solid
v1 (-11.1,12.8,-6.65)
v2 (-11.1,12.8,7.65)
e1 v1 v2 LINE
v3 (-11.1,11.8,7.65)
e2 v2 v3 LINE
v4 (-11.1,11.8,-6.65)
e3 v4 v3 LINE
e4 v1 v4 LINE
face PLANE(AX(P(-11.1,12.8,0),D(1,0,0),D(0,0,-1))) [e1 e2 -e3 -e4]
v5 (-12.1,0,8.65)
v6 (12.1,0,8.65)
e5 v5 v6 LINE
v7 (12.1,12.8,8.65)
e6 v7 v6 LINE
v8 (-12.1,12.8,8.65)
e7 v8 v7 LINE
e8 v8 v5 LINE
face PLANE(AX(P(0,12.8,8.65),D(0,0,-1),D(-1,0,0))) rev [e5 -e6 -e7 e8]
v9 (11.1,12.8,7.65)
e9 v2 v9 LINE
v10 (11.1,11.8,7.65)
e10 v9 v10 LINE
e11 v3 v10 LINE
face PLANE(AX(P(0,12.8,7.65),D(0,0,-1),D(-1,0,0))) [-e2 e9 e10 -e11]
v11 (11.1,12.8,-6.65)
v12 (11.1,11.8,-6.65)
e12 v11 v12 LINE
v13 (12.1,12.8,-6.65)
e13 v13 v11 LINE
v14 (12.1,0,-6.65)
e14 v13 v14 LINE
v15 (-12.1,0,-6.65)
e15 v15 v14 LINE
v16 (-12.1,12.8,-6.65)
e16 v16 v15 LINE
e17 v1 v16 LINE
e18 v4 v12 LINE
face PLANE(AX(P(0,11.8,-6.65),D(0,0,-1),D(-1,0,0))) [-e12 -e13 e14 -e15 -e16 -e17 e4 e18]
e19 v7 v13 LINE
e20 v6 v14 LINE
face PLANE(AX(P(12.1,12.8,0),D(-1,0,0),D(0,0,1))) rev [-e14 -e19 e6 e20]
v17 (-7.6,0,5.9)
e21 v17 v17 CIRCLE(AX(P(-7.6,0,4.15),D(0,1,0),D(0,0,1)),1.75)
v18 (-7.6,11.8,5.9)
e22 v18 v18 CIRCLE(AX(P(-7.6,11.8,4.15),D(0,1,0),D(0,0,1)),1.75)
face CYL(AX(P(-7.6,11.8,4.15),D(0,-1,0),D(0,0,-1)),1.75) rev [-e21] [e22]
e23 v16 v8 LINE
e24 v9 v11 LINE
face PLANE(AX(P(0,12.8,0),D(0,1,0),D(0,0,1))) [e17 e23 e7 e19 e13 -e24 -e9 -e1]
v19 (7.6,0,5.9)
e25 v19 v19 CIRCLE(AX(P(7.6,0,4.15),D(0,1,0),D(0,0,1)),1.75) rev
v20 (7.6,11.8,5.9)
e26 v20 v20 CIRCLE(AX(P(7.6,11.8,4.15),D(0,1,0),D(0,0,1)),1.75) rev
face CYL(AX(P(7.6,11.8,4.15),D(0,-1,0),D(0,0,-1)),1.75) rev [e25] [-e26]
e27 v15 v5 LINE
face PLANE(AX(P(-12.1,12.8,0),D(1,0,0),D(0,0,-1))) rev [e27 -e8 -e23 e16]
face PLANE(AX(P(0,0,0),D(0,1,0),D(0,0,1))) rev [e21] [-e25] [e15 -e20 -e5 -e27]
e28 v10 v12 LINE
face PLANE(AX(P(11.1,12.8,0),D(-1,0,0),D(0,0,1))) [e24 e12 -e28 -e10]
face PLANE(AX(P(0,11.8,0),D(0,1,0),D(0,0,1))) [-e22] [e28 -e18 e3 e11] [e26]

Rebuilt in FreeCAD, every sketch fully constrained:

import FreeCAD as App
import Part
import Sketcher

V = App.Vector

doc = App.newDocument("Part")
body = doc.addObject("PartDesign::Body", "Body")

sketch1 = doc.addObject("Sketcher::SketchObject", "Sketch")
body.addObject(sketch1)
sketch1.AttachmentSupport = (doc.XZ_Plane, [""])
sketch1.MapMode = "FlatFace"
sketch1.addGeometry([
    Part.LineSegment(V(-11.1, -6.65, 0), V(-11.1, 7.65, 0)),
    Part.LineSegment(V(-11.1, 7.65, 0), V(11.1, 7.65, 0)),
    Part.LineSegment(V(11.1, 7.65, 0), V(11.1, -6.65, 0)),
    Part.LineSegment(V(11.1, -6.65, 0), V(-11.1, -6.65, 0)),
    Part.Circle(V(-7.6, 4.15, 0), V(0, 0, 1), 1.75),
    Part.Circle(V(7.6, 4.15, 0), V(0, 0, 1), 1.75),
], False)
sketch1.addConstraint([
    Sketcher.Constraint("Coincident", 0, 2, 1, 1),
    Sketcher.Constraint("Coincident", 1, 2, 2, 1),
    Sketcher.Constraint("Coincident", 2, 2, 3, 1),
    Sketcher.Constraint("Coincident", 3, 2, 0, 1),
    Sketcher.Constraint("Vertical", 0),
    Sketcher.Constraint("Horizontal", 1),
    Sketcher.Constraint("Vertical", 2),
    Sketcher.Constraint("Horizontal", 3),
    Sketcher.Constraint("Equal", 4, 5),
    Sketcher.Constraint("Symmetric", 4, 3, 5, 3, -2),
    Sketcher.Constraint("Diameter", 4, 3.5),
    Sketcher.Constraint("DistanceX", 1, 1, 1, 2, 22.2),
    Sketcher.Constraint("DistanceY", 0, 1, 0, 2, 14.3),
    Sketcher.Constraint("DistanceX", 4, 3, -1, 1, 7.6),
    Sketcher.Constraint("DistanceX", 0, 2, -1, 1, 11.1),
    Sketcher.Constraint("DistanceY", 4, 3, 0, 2, 3.5),
    Sketcher.Constraint("DistanceY", -1, 1, 4, 3, 4.15),
])
pad1 = doc.addObject("PartDesign::Pad", "Pad")
body.addObject(pad1)
pad1.Profile = sketch1
pad1.Length = 11.8
pad1.Reversed = True

sketch2 = doc.addObject("Sketcher::SketchObject", "Sketch001")
body.addObject(sketch2)
sketch2.AttachmentSupport = (doc.XZ_Plane, [""])
sketch2.MapMode = "FlatFace"
sketch2.addGeometry([
    Part.LineSegment(V(12.1, 8.65, 0), V(12.1, -6.65, 0)),
    Part.LineSegment(V(12.1, -6.65, 0), V(11.1, -6.65, 0)),
    Part.LineSegment(V(11.1, -6.65, 0), V(11.1, 7.65, 0)),
    Part.LineSegment(V(11.1, 7.65, 0), V(-11.1, 7.65, 0)),
    Part.LineSegment(V(-11.1, 7.65, 0), V(-11.1, -6.65, 0)),
    Part.LineSegment(V(-11.1, -6.65, 0), V(-12.1, -6.65, 0)),
    Part.LineSegment(V(-12.1, -6.65, 0), V(-12.1, 8.65, 0)),
    Part.LineSegment(V(-12.1, 8.65, 0), V(12.1, 8.65, 0)),
], False)
sketch2.addConstraint([
    Sketcher.Constraint("Coincident", 0, 2, 1, 1),
    Sketcher.Constraint("Coincident", 1, 2, 2, 1),
    Sketcher.Constraint("Coincident", 2, 2, 3, 1),
    Sketcher.Constraint("Coincident", 3, 2, 4, 1),
    Sketcher.Constraint("Coincident", 4, 2, 5, 1),
    Sketcher.Constraint("Coincident", 5, 2, 6, 1),
    Sketcher.Constraint("Coincident", 6, 2, 7, 1),
    Sketcher.Constraint("Coincident", 7, 2, 0, 1),
    Sketcher.Constraint("Vertical", 0),
    Sketcher.Constraint("Horizontal", 1),
    Sketcher.Constraint("Vertical", 2),
    Sketcher.Constraint("Horizontal", 3),
    Sketcher.Constraint("Vertical", 4),
    Sketcher.Constraint("Horizontal", 5),
    Sketcher.Constraint("Vertical", 6),
    Sketcher.Constraint("Horizontal", 7),
    Sketcher.Constraint("Symmetric", 1, 2, 4, 2, -2),
    Sketcher.Constraint("Equal", 1, 5),
    Sketcher.Constraint("DistanceX", 1, 2, 1, 1, 1.0),
    Sketcher.Constraint("DistanceX", 3, 2, 3, 1, 22.2),
    Sketcher.Constraint("DistanceY", 0, 2, 0, 1, 15.3),
    Sketcher.Constraint("DistanceY", 2, 1, 2, 2, 14.3),
    Sketcher.Constraint("DistanceY", 0, 2, -1, 1, 6.65),
])
pad2 = doc.addObject("PartDesign::Pad", "Pad001")
body.addObject(pad2)
pad2.Profile = sketch2
pad2.Length = 12.8
pad2.Reversed = True

doc.recompute()
